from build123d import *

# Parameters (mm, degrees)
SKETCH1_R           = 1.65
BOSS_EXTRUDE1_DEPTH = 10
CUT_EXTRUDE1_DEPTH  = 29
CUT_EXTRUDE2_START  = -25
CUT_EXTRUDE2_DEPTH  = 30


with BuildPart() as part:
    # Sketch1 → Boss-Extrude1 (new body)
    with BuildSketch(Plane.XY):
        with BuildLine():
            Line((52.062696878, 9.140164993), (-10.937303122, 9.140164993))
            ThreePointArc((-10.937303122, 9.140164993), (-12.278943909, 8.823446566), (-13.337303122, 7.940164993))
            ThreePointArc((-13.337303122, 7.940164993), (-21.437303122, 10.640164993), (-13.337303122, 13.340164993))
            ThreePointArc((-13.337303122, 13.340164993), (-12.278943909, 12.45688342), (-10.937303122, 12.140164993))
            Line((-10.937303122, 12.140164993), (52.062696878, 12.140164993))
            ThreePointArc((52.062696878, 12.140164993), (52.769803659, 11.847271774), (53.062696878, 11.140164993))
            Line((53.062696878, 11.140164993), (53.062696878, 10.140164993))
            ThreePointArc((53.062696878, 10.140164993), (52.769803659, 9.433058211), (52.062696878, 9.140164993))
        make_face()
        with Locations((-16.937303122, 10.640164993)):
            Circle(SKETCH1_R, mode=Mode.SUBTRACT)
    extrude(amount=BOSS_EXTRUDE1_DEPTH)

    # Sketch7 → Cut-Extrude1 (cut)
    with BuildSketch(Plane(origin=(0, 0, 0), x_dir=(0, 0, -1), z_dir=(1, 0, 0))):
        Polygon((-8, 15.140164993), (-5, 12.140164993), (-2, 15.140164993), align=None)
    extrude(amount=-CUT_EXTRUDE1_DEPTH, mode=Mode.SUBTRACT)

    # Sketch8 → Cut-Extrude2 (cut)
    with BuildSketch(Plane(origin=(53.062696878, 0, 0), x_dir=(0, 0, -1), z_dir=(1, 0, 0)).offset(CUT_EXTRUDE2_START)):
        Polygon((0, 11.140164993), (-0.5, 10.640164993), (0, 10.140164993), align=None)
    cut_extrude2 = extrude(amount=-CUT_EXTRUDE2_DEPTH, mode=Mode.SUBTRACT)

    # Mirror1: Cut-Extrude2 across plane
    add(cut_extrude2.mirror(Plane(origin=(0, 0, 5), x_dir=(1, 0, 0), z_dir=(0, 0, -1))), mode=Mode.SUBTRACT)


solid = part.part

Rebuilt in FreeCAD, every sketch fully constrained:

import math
import FreeCAD as App
import Part
import Sketcher
from FreeCAD import Vector
Q = App.Units.Quantity


def add_polygon(sketch, points):
    """Adds a closed chain of lines whose ends are joined by coincident constraints."""
    first, n = sketch.GeometryCount, len(points)
    for a, b in zip(points, points[1:] + points[:1]):
        sketch.addGeometry(Part.LineSegment(App.Vector(*a, 0), App.Vector(*b, 0)), False)
    for i in range(n):
        sketch.addConstraint(Sketcher.Constraint("Coincident", first + i, 2, first + (i + 1) % n, 1))

doc = App.newDocument("Part")
body = doc.addObject("PartDesign::Body", "Body")

# Sketch on XY plane
sketch1 = body.newObject("Sketcher::SketchObject", "Sketch")
sketch1.AttachmentSupport = (doc.getObject("XY_Plane"), [""])
sketch1.MapMode = "FlatFace"
sketch1.addGeometry([
    Part.LineSegment(Vector(-10.9, 9.1, 0), Vector(52.1, 9.1, 0)),  # 0
    Part.ArcOfCircle(Part.Circle(Vector(52.1, 10.1, 0), Vector(0, 0, 1), 1), math.radians(-90), math.radians(0)),  # 1
    Part.LineSegment(Vector(53.1, 10.1, 0), Vector(53.1, 11.1, 0)),  # 2
    Part.ArcOfCircle(Part.Circle(Vector(52.1, 11.1, 0), Vector(0, 0, 1), 1), math.radians(0), math.radians(90)),  # 3
    Part.LineSegment(Vector(52.1, 12.1, 0), Vector(-10.9, 12.1, 0)),  # 4
    Part.ArcOfCircle(Part.Circle(Vector(-10.9, 15.1, 0), Vector(0, 0, 1), 3), math.radians(-143), math.radians(-90)),  # 5
    Part.ArcOfCircle(Part.Circle(Vector(-16.9, 10.6, 0), Vector(0, 0, 1), 4.5), math.radians(37), math.radians(323)),  # 6
    Part.ArcOfCircle(Part.Circle(Vector(-10.9, 6.1, 0), Vector(0, 0, 1), 3), math.radians(90), math.radians(143)),  # 7
    Part.Circle(Vector(-16.9, 10.6, 0), Vector(0, 0, 1), 1.6),  # 8
], False)
sketch1.addConstraint([
    Sketcher.Constraint("Tangent", 0, 2, 1, 1),
    Sketcher.Constraint("Tangent", 1, 2, 2, 1),
    Sketcher.Constraint("Tangent", 2, 2, 3, 1),
    Sketcher.Constraint("Tangent", 3, 2, 4, 1),
    Sketcher.Constraint("Tangent", 4, 2, 5, 2),
    Sketcher.Constraint("Tangent", 5, 1, 6, 1),
    Sketcher.Constraint("Tangent", 6, 2, 7, 2),
    Sketcher.Constraint("Tangent", 7, 1, 0, 1),
    Sketcher.Constraint("Horizontal", 0),
    Sketcher.Constraint("Vertical", 2),
    Sketcher.Constraint("Horizontal", 4),
    Sketcher.Constraint("Coincident", 8, 3, 6, 3),
    Sketcher.Constraint("Equal", 1, 3),
    Sketcher.Constraint("Equal", 5, 7),
    Sketcher.Constraint("Vertical", 5, 3, 7, 3),
    Sketcher.Constraint("Radius", 1, Q("1 mm")),
    Sketcher.Constraint("Radius", 5, Q("3 mm")),
    Sketcher.Constraint("Diameter", 8, Q("3.3 mm")),
    Sketcher.Constraint("Radius", 6, Q("4.5 mm")),
    Sketcher.Constraint("DistanceX", 0, 1, 0, 2, Q("63 mm")),
    Sketcher.Constraint("DistanceY", 2, 1, 2, 2, Q("1 mm")),
    Sketcher.Constraint("DistanceX", -1, 1, 1, 3, Q("52.062697 mm")),
    Sketcher.Constraint("DistanceY", -1, 1, 1, 3, Q("10.140165 mm")),
])
pad1 = body.newObject("PartDesign::Pad", "Pad")
pad1.Profile = sketch1
pad1.Length = 10

# Sketch on YZ plane
sketch2 = body.newObject("Sketcher::SketchObject", "Sketch001")
sketch2.AttachmentSupport = (doc.getObject("YZ_Plane"), [""])
sketch2.MapMode = "FlatFace"
add_polygon(sketch2, [(15.1, 8), (12.1, 5), (15.1, 2)])  # lines 0-2
sketch2.addConstraint([
    Sketcher.Constraint("Vertical", 2),
    Sketcher.Constraint("Perpendicular", 0, 1),
    Sketcher.Constraint("Equal", 0, 1),
    Sketcher.Constraint("DistanceY", 2, 1, 2, 2, Q("6 mm")),
    Sketcher.Constraint("DistanceY", -1, 1, 0, 2, Q("5 mm")),
    Sketcher.Constraint("DistanceX", -1, 1, 0, 2, Q("12.140165 mm")),
])
pocket1 = body.newObject("PartDesign::Pocket", "Pocket")
pocket1.Profile = sketch2
pocket1.Length = 29

# Sketch on YZ plane
sketch3 = body.newObject("Sketcher::SketchObject", "Sketch002")
sketch3.AttachmentSupport = (doc.getObject("YZ_Plane"), [""])
sketch3.MapMode = "FlatFace"
sketch3.AttachmentOffset = App.Placement(Vector(0, 0, 28.062697), App.Rotation())
add_polygon(sketch3, [(11.1, 0), (10.6, 0.5), (10.1, 0)])  # lines 0-2
sketch3.addConstraint([
    Sketcher.Constraint("Horizontal", 2),
    Sketcher.Constraint("PointOnObject", 1, 2, -1),
    Sketcher.Constraint("Perpendicular", 0, 1),
    Sketcher.Constraint("Equal", 0, 1),
    Sketcher.Constraint("DistanceX", 2, 1, 2, 2, Q("1 mm")),
    Sketcher.Constraint("DistanceX", -1, 1, 0, 2, Q("10.640165 mm")),
])
pocket2 = body.newObject("PartDesign::Pocket", "Pocket001")
pocket2.Profile = sketch3
pocket2.Length = 30
doc.recompute()

datumplane = body.newObject("PartDesign::Plane", "DatumPlane")
datumplane.AttachmentSupport = (doc.getObject("XY_Plane"), [""])
datumplane.MapMode = "FlatFace"
datumplane.AttachmentOffset = App.Placement(Vector(0, 0, 5), App.Rotation())
mirrored = body.newObject("PartDesign::Mirrored", "Mirrored")
mirrored.Originals = [pocket2]
mirrored.MirrorPlane = (datumplane, [""])
body.Tip = mirrored

doc.recompute()
